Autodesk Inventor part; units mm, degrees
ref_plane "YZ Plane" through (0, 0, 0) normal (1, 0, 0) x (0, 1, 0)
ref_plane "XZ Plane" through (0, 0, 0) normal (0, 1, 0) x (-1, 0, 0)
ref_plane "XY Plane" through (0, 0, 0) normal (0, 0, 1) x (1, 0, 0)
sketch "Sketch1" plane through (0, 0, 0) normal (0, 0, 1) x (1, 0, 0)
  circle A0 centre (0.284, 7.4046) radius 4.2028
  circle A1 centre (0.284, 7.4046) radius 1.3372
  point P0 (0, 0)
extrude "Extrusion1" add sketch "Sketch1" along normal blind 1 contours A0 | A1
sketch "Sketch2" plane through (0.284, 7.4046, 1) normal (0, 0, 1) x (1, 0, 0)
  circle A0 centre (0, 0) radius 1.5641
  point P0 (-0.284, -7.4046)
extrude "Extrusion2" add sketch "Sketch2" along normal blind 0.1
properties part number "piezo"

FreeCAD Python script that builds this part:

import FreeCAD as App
import Part
import Sketcher

V = App.Vector

doc = App.newDocument("Part")
body = doc.addObject("PartDesign::Body", "Body")

# Sketch on XY plane
sketch1 = body.newObject("Sketcher::SketchObject", "Sketch")
sketch1.AttachmentSupport = (doc.getObject("XY_Plane"), [""])
sketch1.MapMode = "FlatFace"
sketch1.addGeometry(Part.Circle(V(0.284, 7.4046, 0), V(0, 0, 1), 4.2028), False)
sketch1.addConstraint(Sketcher.Constraint("Diameter", 0, 8.4056))
sketch1.addConstraint(Sketcher.Constraint("DistanceX", -1, 1, 0, 3, 0.284))
sketch1.addConstraint(Sketcher.Constraint("DistanceY", -1, 1, 0, 3, 7.4046))
pad1 = body.newObject("PartDesign::Pad", "Pad")
pad1.Profile = sketch1
pad1.Length = 1

# Sketch on XY plane
sketch2 = body.newObject("Sketcher::SketchObject", "Sketch001")
sketch2.AttachmentSupport = (doc.getObject("XY_Plane"), [""])
sketch2.MapMode = "FlatFace"
sketch2.AttachmentOffset = App.Placement(V(0, 0, 1), App.Rotation())
sketch2.addGeometry(Part.Circle(V(0.284, 7.4046, 0), V(0, 0, 1), 1.5641), False)
sketch2.addConstraint(Sketcher.Constraint("Diameter", 0, 3.1282))
sketch2.addConstraint(Sketcher.Constraint("DistanceX", -1, 1, 0, 3, 0.284))
sketch2.addConstraint(Sketcher.Constraint("DistanceY", -1, 1, 0, 3, 7.4046))
pad2 = body.newObject("PartDesign::Pad", "Pad001")
pad2.Profile = sketch2
pad2.Length = 0.1

doc.recompute()
